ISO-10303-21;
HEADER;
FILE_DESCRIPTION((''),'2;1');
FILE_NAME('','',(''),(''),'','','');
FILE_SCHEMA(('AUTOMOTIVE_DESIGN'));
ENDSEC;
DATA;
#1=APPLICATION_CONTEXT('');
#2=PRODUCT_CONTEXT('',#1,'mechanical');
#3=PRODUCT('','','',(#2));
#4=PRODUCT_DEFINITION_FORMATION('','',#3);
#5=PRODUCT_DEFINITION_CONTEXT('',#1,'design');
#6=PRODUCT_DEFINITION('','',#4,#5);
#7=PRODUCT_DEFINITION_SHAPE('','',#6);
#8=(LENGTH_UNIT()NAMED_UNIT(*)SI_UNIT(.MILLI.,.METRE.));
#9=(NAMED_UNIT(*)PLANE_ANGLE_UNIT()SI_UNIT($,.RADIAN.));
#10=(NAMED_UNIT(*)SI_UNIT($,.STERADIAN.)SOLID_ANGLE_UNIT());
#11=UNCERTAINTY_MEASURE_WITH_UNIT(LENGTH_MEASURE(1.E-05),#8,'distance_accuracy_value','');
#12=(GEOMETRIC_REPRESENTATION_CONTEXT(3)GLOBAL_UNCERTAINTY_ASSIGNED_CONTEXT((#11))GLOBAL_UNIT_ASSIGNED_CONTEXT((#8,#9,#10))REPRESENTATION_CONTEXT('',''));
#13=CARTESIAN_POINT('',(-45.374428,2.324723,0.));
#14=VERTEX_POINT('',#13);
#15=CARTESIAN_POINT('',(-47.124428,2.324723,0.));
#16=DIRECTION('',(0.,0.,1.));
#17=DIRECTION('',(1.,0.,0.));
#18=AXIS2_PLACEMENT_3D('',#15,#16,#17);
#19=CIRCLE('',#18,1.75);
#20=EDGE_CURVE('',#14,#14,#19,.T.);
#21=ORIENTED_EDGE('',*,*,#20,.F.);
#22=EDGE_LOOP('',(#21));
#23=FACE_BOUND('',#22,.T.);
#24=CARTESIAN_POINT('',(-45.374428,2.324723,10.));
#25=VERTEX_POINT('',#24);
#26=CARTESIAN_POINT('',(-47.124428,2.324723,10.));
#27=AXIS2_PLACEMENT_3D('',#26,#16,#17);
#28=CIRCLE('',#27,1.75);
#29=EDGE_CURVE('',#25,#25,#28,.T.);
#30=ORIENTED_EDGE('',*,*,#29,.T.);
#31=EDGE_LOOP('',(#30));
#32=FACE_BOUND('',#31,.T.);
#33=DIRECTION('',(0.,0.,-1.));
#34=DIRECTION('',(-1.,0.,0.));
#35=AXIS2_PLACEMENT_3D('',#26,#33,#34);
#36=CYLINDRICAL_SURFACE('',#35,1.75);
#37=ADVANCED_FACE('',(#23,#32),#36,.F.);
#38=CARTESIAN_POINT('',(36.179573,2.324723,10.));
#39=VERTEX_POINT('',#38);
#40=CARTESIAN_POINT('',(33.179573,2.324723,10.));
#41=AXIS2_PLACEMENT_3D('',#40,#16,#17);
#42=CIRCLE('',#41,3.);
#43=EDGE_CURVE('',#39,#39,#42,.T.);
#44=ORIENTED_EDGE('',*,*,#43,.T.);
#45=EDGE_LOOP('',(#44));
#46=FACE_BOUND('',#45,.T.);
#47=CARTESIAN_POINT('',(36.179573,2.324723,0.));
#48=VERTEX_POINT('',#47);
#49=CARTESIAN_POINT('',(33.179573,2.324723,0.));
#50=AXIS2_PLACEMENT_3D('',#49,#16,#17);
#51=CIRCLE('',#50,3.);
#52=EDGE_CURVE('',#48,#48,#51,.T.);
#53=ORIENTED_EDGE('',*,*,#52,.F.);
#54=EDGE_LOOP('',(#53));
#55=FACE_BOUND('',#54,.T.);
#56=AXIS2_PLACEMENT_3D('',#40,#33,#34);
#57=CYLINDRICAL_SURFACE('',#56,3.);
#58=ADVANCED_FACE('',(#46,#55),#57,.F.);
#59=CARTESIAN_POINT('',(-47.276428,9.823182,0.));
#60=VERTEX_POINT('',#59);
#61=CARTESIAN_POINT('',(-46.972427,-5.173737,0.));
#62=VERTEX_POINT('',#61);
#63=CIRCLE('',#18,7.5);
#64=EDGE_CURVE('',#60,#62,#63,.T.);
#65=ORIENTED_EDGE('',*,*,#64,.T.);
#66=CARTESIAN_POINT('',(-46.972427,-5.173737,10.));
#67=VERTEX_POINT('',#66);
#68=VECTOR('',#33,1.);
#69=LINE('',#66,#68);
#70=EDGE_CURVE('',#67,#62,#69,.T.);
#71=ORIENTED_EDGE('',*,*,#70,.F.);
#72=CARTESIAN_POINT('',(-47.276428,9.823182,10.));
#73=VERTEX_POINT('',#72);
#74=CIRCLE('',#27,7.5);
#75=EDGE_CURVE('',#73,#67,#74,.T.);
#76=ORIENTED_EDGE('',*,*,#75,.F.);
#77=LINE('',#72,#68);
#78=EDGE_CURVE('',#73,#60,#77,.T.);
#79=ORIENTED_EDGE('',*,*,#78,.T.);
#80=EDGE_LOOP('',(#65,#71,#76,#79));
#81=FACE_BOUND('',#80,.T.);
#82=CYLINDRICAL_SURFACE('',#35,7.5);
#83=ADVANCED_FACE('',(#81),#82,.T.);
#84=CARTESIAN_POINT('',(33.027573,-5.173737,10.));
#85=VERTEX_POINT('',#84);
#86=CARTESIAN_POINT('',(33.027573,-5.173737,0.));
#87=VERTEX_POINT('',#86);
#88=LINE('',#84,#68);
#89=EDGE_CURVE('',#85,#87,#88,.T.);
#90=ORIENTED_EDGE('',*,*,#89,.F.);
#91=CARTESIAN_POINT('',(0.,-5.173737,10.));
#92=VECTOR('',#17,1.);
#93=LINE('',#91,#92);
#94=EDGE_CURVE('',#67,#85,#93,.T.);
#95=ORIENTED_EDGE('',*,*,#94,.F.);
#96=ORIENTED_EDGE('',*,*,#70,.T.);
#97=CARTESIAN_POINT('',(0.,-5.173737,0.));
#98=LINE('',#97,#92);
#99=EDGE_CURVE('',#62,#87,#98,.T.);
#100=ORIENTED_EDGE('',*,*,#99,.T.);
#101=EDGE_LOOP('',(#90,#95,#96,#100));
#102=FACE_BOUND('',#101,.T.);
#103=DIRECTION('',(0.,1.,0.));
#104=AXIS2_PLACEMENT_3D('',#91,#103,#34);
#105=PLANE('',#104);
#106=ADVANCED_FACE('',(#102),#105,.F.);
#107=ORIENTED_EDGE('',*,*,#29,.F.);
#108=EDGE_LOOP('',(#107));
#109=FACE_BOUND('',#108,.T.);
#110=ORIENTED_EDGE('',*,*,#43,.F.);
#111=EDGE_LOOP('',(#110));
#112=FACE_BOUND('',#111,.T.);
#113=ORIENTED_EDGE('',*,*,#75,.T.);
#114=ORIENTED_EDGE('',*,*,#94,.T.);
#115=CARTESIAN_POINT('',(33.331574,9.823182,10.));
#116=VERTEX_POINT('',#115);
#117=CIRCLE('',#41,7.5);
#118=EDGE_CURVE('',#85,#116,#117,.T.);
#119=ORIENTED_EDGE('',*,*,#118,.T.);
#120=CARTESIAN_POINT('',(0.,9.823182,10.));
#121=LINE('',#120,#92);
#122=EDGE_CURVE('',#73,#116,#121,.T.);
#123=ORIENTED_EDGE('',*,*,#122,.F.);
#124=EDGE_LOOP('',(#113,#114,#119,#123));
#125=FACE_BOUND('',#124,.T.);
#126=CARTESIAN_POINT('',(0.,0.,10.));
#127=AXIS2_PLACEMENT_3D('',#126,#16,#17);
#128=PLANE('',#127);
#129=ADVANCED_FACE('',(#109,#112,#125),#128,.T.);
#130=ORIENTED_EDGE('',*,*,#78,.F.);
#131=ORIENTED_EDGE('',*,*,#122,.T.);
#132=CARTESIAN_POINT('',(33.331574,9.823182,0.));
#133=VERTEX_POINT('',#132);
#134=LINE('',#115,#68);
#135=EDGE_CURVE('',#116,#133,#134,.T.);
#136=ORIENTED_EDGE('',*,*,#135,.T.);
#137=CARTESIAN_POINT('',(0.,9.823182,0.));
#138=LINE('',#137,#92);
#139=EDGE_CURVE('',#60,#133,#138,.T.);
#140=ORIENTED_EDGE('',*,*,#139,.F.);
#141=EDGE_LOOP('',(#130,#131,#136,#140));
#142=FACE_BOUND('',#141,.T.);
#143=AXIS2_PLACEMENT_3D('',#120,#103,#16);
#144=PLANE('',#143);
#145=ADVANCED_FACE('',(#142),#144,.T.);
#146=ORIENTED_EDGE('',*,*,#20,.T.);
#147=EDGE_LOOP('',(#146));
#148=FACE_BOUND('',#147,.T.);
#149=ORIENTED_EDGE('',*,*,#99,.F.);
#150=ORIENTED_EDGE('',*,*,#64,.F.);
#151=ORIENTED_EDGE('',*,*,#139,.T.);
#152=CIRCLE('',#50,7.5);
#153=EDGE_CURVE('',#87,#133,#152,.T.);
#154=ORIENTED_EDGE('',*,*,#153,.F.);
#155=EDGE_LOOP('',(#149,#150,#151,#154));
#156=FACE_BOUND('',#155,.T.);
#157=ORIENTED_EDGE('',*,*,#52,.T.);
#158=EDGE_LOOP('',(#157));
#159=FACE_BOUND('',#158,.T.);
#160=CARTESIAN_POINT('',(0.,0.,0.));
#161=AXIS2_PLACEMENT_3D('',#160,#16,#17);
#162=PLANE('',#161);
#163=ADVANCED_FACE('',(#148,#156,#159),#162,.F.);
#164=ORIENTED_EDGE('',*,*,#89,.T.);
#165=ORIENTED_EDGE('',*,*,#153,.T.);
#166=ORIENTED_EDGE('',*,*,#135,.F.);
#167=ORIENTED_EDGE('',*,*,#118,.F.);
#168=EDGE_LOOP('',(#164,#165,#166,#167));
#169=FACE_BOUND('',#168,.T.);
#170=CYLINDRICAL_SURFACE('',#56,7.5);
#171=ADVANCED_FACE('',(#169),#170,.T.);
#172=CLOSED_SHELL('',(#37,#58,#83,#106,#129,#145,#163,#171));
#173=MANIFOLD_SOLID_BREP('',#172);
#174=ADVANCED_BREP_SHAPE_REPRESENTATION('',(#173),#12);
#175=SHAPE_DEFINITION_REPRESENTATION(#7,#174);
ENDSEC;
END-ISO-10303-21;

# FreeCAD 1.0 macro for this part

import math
import FreeCAD as App
import Part
import Sketcher
from FreeCAD import Vector
Q = App.Units.Quantity

doc = App.newDocument("Part")
body = doc.addObject("PartDesign::Body", "Body")

# Sketch on XY plane
sketch1 = body.newObject("Sketcher::SketchObject", "Sketch")
sketch1.AttachmentSupport = (doc.getObject("XY_Plane"), [""])
sketch1.MapMode = "FlatFace"
sketch1.addGeometry(Part.ArcOfCircle(Part.Circle(Vector(-47.1, 2.3, 0), Vector(0, 0, 1), 7.5), math.radians(91), math.radians(271)), False)
sketch1.addGeometry(Part.LineSegment(Vector(-47, -5.2, 0), Vector(33, -5.2, 0)), False)
sketch1.addGeometry(Part.ArcOfCircle(Part.Circle(Vector(33.2, 2.3, 0), Vector(0, 0, 1), 7.5), math.radians(-91), math.radians(0)), False)
sketch1.addGeometry(Part.ArcOfCircle(Part.Circle(Vector(33.2, 2.3, 0), Vector(0, 0, 1), 7.5), math.radians(0), math.radians(89)), False)
sketch1.addGeometry(Part.LineSegment(Vector(33.3, 9.8, 0), Vector(-47.3, 9.8, 0)), False)
sketch1.addGeometry(Part.Circle(Vector(-47.1, 2.3, 0), Vector(0, 0, 1), 1.8), False)
sketch1.addGeometry(Part.Circle(Vector(33.2, 2.3, 0), Vector(0, 0, 1), 3), False)
sketch1.addConstraint(Sketcher.Constraint("Coincident", 0, 2, 1, 1))
sketch1.addConstraint(Sketcher.Constraint("Coincident", 1, 2, 2, 1))
sketch1.addConstraint(Sketcher.Constraint("Tangent", 2, 2, 3, 1))
sketch1.addConstraint(Sketcher.Constraint("Coincident", 3, 2, 4, 1))
sketch1.addConstraint(Sketcher.Constraint("Coincident", 4, 2, 0, 1))
sketch1.addConstraint(Sketcher.Constraint("Horizontal", 1))
sketch1.addConstraint(Sketcher.Constraint("Horizontal", 4))
sketch1.addConstraint(Sketcher.Constraint("Coincident", 5, 3, 0, 3))
sketch1.addConstraint(Sketcher.Constraint("Coincident", 6, 3, 2, 3))
sketch1.addConstraint(Sketcher.Constraint("Equal", 0, 2))
sketch1.addConstraint(Sketcher.Constraint("Equal", 2, 3))
sketch1.addConstraint(Sketcher.Constraint("Horizontal", 0, 3, 2, 3))
sketch1.addConstraint(Sketcher.Constraint("Horizontal", 6, 3, 2, 2))
sketch1.addConstraint(Sketcher.Constraint("Diameter", 6, Q("6 mm")))
sketch1.addConstraint(Sketcher.Constraint("Diameter", 5, Q("3.5 mm")))
sketch1.addConstraint(Sketcher.Constraint("Radius", 0, Q("7.5 mm")))
sketch1.addConstraint(Sketcher.Constraint("DistanceX", 1, 1, 1, 2, Q("80 mm")))
sketch1.addConstraint(Sketcher.Constraint("DistanceX", 0, 3, 2, 3, Q("80.304001 mm")))
sketch1.addConstraint(Sketcher.Constraint("DistanceX", 2, 3, 3, 2, Q("0.152001 mm")))
sketch1.addConstraint(Sketcher.Constraint("DistanceX", 4, 2, -1, 1, Q("47.276428 mm")))
sketch1.addConstraint(Sketcher.Constraint("DistanceY", -1, 1, 0, 3, Q("2.324723 mm")))
pad1 = body.newObject("PartDesign::Pad", "Pad")
pad1.Profile = sketch1
pad1.Length = 10

doc.recompute()
